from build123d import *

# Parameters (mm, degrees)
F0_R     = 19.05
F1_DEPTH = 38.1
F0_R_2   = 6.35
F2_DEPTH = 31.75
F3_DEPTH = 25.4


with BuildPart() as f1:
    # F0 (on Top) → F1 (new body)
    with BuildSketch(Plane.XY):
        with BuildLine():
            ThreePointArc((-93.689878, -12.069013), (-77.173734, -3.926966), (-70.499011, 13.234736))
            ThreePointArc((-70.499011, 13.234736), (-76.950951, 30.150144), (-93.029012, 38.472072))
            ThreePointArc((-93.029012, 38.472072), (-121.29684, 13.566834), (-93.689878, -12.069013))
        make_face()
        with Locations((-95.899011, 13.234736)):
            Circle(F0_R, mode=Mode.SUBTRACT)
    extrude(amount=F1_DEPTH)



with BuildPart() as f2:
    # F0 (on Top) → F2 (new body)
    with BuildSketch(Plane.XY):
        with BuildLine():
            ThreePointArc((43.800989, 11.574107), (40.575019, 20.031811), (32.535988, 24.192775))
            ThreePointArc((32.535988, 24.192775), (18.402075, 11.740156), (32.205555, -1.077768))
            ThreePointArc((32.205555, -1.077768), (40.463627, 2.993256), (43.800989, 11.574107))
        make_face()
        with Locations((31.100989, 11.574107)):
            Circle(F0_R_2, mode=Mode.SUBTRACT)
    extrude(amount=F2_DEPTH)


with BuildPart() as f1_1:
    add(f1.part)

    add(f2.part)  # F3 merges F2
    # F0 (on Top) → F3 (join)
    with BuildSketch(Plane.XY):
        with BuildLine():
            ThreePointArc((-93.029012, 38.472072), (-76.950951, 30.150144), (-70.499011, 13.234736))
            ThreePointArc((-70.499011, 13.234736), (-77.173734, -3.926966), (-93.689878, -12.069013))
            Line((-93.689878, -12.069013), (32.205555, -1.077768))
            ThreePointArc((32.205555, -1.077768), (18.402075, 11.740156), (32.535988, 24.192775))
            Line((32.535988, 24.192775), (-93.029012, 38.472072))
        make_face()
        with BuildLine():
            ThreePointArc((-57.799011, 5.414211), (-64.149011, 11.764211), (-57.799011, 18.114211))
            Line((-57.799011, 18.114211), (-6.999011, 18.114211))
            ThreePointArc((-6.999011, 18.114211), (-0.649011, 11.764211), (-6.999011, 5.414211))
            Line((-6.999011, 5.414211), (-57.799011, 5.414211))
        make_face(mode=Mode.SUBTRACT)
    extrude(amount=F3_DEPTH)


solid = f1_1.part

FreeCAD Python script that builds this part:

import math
import FreeCAD as App
import Part
import Sketcher

V = App.Vector
Q = App.Units.Quantity

doc = App.newDocument("Part")
body = doc.addObject("PartDesign::Body", "Body")

# Sketch on XY plane
sketch1 = body.newObject("Sketcher::SketchObject", "Sketch")
sketch1.AttachmentSupport = (doc.getObject("XY_Plane"), [""])
sketch1.MapMode = "FlatFace"
sketch1.addGeometry([
    Part.ArcOfCircle(Part.Circle(V(-96, 13, 0), V(0, 0, 1), 25), math.radians(-85), math.radians(0)),
    Part.ArcOfCircle(Part.Circle(V(-96, 13, 0), V(0, 0, 1), 25), math.radians(0), math.radians(84)),
    Part.ArcOfCircle(Part.Circle(V(-96, 13, 0), V(0, 0, 1), 25), math.radians(84), math.radians(275)),
    Part.Circle(V(-96, 13, 0), V(0, 0, 1), 19),
], False)
sketch1.addConstraint([
    Sketcher.Constraint("Tangent", 0, 2, 1, 1),
    Sketcher.Constraint("Tangent", 1, 2, 2, 1),
    Sketcher.Constraint("Tangent", 2, 2, 0, 1),
    Sketcher.Constraint("Coincident", 3, 3, 0, 3),
    Sketcher.Constraint("Horizontal", 3, 3, 0, 2),
    Sketcher.Constraint("Radius", 0, Q("0.9999999 in")),
    Sketcher.Constraint("Diameter", 3, Q("1.5 in")),
    Sketcher.Constraint("DistanceX", 2, 3, 1, 2, 2.869999),
    Sketcher.Constraint("DistanceX", 0, 3, -1, 1, 95.89901),
    Sketcher.Constraint("DistanceY", -1, 1, 1, 2, 38.472072),
    Sketcher.Constraint("DistanceX", 0, 3, 2, 2, 2.209132),
])
pad1 = body.newObject("PartDesign::Pad", "Pad")
pad1.Profile = sketch1
pad1.Length = Q("1.5 in")
body2 = doc.addObject("PartDesign::Body", "Body001")

# Sketch on XY plane
sketch2 = body2.newObject("Sketcher::SketchObject", "Sketch001")
sketch2.AttachmentSupport = (doc.getObject("XY_Plane001"), [""])
sketch2.MapMode = "FlatFace"
sketch2.addGeometry([
    Part.ArcOfCircle(Part.Circle(V(31, 12, 0), V(0, 0, 1), 13), math.radians(0), math.radians(84)),
    Part.ArcOfCircle(Part.Circle(V(31, 12, 0), V(0, 0, 1), 13), math.radians(84), math.radians(275)),
    Part.ArcOfCircle(Part.Circle(V(31, 12, 0), V(0, 0, 1), 13), math.radians(-85), math.radians(0)),
    Part.Circle(V(31, 12, 0), V(0, 0, 1), 6),
], False)
sketch2.addConstraint([
    Sketcher.Constraint("Tangent", 0, 2, 1, 1),
    Sketcher.Constraint("Tangent", 1, 2, 2, 1),
    Sketcher.Constraint("Tangent", 2, 2, 0, 1),
    Sketcher.Constraint("Coincident", 3, 3, 0, 3),
    Sketcher.Constraint("Horizontal", 3, 3, 2, 2),
    Sketcher.Constraint("Diameter", 3, Q("0.5 in")),
    Sketcher.Constraint("Radius", 0, Q("0.5 in")),
    Sketcher.Constraint("DistanceX", 2, 3, 0, 2, 1.435),
    Sketcher.Constraint("DistanceX", -1, 1, 0, 3, 31.100989),
    Sketcher.Constraint("DistanceY", 1, 2, -1, 1, 1.077768),
    Sketcher.Constraint("DistanceY", -1, 1, 0, 3, 11.574107),
])
pad2 = body2.newObject("PartDesign::Pad", "Pad001")
pad2.Profile = sketch2
pad2.Length = Q("1.25 in")
body.AllowCompound = True
doc.recompute()

boolean = body.newObject("PartDesign::Boolean", "Boolean")
boolean.Type = "Fuse"
boolean.addObjects([body2])

# Sketch on XY plane
sketch3 = body.newObject("Sketcher::SketchObject", "Sketch002")
sketch3.AttachmentSupport = (doc.getObject("XY_Plane"), [""])
sketch3.MapMode = "FlatFace"
sketch3.addGeometry([
    Part.ArcOfCircle(Part.Circle(V(-96, 13, 0), V(0, 0, 1), 25), math.radians(0), math.radians(84)),  # 0
    Part.ArcOfCircle(Part.Circle(V(-96, 13, 0), V(0, 0, 1), 25), math.radians(-85), math.radians(0)),  # 1
    Part.LineSegment(V(-94, -12, 0), V(32, -1, 0)),  # 2
    Part.ArcOfCircle(Part.Circle(V(31, 12, 0), V(0, 0, 1), 13), math.radians(84), math.radians(275)),  # 3
    Part.LineSegment(V(33, 24, 0), V(-93, 38, 0)),  # 4
    Part.LineSegment(V(-7, 5, 0), V(-58, 5, 0)),  # 5
    Part.ArcOfCircle(Part.Circle(V(-58, 12, 0), V(0, 0, 1), 6), math.radians(90), math.radians(270)),  # 6
    Part.LineSegment(V(-58, 18, 0), V(-7, 18, 0)),  # 7
    Part.ArcOfCircle(Part.Circle(V(-7, 12, 0), V(0, 0, 1), 6), math.radians(-90), math.radians(90)),  # 8
], False)
sketch3.addConstraint([
    Sketcher.Constraint("Tangent", 0, 1, 1, 2),
    Sketcher.Constraint("Tangent", 1, 1, 2, 1),
    Sketcher.Constraint("Tangent", 2, 2, 3, 2),
    Sketcher.Constraint("Tangent", 3, 1, 4, 1),
    Sketcher.Constraint("Tangent", 4, 2, 0, 2),
    Sketcher.Constraint("Tangent", 5, 2, 6, 2),
    Sketcher.Constraint("Tangent", 6, 1, 7, 1),
    Sketcher.Constraint("Tangent", 7, 2, 8, 2),
    Sketcher.Constraint("Tangent", 8, 1, 5, 1),
    Sketcher.Constraint("Horizontal", 5),
    Sketcher.Constraint("Horizontal", 7),
    Sketcher.Constraint("Horizontal", 1, 3, 0, 1),
    Sketcher.Constraint("Equal", 2, 4),
    Sketcher.Constraint("Radius", 0, Q("1 in")),
    Sketcher.Constraint("Radius", 3, Q("0.5 in")),
    Sketcher.Constraint("DistanceX", 5, 2, 5, 1, Q("2 in")),
    Sketcher.Constraint("Radius", 6, Q("0.25 in")),
    Sketcher.Constraint("DistanceX", 1, 3, 3, 3, Q("5 in")),
    Sketcher.Constraint("DistanceX", 1, 3, 6, 3, Q("1.4999999 in")),
    Sketcher.Constraint("DistanceX", 3, 3, 3, 1, 1.434998),
    Sketcher.Constraint("DistanceX", 0, 3, -1, 1, 95.899012),
    Sketcher.Constraint("DistanceY", -1, 1, 6, 3, 11.764211),
    Sketcher.Constraint("DistanceY", 2, 2, -1, 1, 1.077768),
])
pad3 = body.newObject("PartDesign::Pad", "Pad002")
pad3.Profile = sketch3
pad3.Length = Q("1 in")

doc.recompute()
